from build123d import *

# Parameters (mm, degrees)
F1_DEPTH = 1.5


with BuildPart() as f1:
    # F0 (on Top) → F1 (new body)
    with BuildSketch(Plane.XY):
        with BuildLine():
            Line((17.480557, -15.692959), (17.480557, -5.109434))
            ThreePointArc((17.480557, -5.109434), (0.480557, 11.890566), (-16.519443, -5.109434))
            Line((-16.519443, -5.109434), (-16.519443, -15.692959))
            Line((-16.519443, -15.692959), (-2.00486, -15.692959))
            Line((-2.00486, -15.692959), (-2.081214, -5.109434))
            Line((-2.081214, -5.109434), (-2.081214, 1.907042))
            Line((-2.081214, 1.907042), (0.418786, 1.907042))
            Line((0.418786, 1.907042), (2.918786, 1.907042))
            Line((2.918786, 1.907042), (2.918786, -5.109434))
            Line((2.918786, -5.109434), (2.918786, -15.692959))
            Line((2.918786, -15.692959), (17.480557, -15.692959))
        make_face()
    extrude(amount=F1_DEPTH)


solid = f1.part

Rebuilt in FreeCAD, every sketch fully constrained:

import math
import FreeCAD as App
import Part
import Sketcher
Q = App.Units.Quantity

doc = App.newDocument("Part")
body = doc.addObject("PartDesign::Body", "Body")

# Sketch on XY plane
sketch1 = body.newObject("Sketcher::SketchObject", "Sketch")
sketch1.AttachmentSupport = (doc.getObject("XY_Plane"), [""])
sketch1.MapMode = "FlatFace"
sketch1.addGeometry([
    Part.LineSegment(App.Vector(17, -16, 0), App.Vector(17, -5, 0)),  # 0
    Part.ArcOfCircle(Part.Circle(App.Vector(0, -5, 0), App.Vector(0, 0, 1), 17), math.radians(0), math.radians(180)),  # 1
    Part.LineSegment(App.Vector(-17, -5, 0), App.Vector(-17, -16, 0)),  # 2
    Part.LineSegment(App.Vector(-17, -16, 0), App.Vector(-2, -16, 0)),  # 3
    Part.LineSegment(App.Vector(-2, -16, 0), App.Vector(-2, -5, 0)),  # 4
    Part.LineSegment(App.Vector(-2, -5, 0), App.Vector(-2, 2, 0)),  # 5
    Part.LineSegment(App.Vector(-2, 2, 0), App.Vector(3, 2, 0)),  # 6
    Part.LineSegment(App.Vector(3, 2, 0), App.Vector(3, -16, 0)),  # 7
    Part.LineSegment(App.Vector(3, -16, 0), App.Vector(17, -16, 0)),  # 8
], False)
sketch1.addConstraint([
    Sketcher.Constraint("Tangent", 0, 2, 1, 1),
    Sketcher.Constraint("Tangent", 1, 2, 2, 1),
    Sketcher.Constraint("Coincident", 2, 2, 3, 1),
    Sketcher.Constraint("Coincident", 3, 2, 4, 1),
    Sketcher.Constraint("Coincident", 4, 2, 5, 1),
    Sketcher.Constraint("Coincident", 5, 2, 6, 1),
    Sketcher.Constraint("Coincident", 6, 2, 7, 1),
    Sketcher.Constraint("Coincident", 7, 2, 8, 1),
    Sketcher.Constraint("Coincident", 8, 2, 0, 1),
    Sketcher.Constraint("Vertical", 0),
    Sketcher.Constraint("Vertical", 2),
    Sketcher.Constraint("Horizontal", 3),
    Sketcher.Constraint("Vertical", 5),
    Sketcher.Constraint("Horizontal", 6),
    Sketcher.Constraint("Vertical", 7),
    Sketcher.Constraint("Horizontal", 8),
    Sketcher.Constraint("Horizontal", 1, 2, 4, 2),
    Sketcher.Constraint("Horizontal", 3, 2, 7, 2),
    Sketcher.Constraint("Radius", 1, Q("17 mm")),
    Sketcher.Constraint("DistanceX", 6, 1, 6, 2, Q("5 mm")),
    Sketcher.Constraint("DistanceY", 7, 2, 7, 1, Q("17.600001 mm")),
    Sketcher.Constraint("Distance", 4, Q("10.5838 mm")),
    Sketcher.Constraint("DistanceX", 8, 1, 8, 2, Q("14.561771 mm")),
    Sketcher.Constraint("DistanceX", 3, 1, 3, 2, Q("14.514583 mm")),
    Sketcher.Constraint("DistanceY", 2, 2, -1, 1, Q("15.692959 mm")),
    Sketcher.Constraint("DistanceX", 3, 2, -1, 1, Q("2.00486 mm")),
])
pad1 = body.newObject("PartDesign::Pad", "Pad")
pad1.Profile = sketch1
pad1.Length = 1.5

doc.recompute()
